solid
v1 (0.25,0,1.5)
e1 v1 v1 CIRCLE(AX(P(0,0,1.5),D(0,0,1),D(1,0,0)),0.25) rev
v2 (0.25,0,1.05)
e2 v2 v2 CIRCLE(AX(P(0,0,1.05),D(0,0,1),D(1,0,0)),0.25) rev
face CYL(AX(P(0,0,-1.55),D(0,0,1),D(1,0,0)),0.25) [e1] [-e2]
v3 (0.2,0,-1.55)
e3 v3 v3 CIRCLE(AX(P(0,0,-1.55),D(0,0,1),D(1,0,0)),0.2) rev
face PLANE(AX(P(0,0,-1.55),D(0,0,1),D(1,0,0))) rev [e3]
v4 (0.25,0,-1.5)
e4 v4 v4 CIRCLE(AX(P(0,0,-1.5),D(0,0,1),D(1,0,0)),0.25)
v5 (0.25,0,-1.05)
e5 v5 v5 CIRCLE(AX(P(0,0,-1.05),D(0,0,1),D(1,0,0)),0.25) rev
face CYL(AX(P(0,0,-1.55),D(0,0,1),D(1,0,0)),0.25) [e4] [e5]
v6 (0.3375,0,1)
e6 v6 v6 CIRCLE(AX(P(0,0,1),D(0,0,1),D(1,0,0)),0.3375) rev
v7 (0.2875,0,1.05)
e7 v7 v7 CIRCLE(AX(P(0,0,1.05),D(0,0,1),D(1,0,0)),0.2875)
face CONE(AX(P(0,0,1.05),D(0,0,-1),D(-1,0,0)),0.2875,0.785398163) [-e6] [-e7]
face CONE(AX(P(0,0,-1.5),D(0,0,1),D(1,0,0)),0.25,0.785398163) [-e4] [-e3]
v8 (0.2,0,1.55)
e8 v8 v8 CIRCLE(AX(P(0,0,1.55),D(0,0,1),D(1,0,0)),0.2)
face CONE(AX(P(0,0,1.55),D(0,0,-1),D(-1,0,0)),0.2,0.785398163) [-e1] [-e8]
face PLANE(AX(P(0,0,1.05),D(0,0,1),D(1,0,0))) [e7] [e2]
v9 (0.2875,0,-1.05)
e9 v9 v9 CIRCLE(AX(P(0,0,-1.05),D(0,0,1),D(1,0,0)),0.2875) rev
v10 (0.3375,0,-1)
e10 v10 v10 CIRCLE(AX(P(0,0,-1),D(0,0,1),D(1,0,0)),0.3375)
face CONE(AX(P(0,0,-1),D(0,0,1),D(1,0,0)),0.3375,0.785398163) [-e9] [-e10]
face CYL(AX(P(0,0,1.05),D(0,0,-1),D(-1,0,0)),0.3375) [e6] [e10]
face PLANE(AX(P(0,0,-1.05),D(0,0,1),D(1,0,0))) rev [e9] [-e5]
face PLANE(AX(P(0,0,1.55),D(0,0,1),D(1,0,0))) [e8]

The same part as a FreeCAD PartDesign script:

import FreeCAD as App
import Part
import Sketcher

V = App.Vector
Q = App.Units.Quantity


def edges_at(feature, points):
    """Names of the edges that pass closest to the given points."""
    edges = feature.Shape.Edges
    near = lambda p: min(range(len(edges)), key=lambda i: edges[i].distToShape(Part.Vertex(*p))[0])
    return sorted({f"Edge{near(p) + 1}" for p in points})

doc = App.newDocument("Part")
body = doc.addObject("PartDesign::Body", "Body")

# Sketch on XY plane
sketch1 = body.newObject("Sketcher::SketchObject", "Sketch")
sketch1.AttachmentSupport = (doc.getObject("XY_Plane"), [""])
sketch1.MapMode = "FlatFace"
sketch1.addGeometry(Part.Circle(V(0, 0, 0), V(0, 0, 1), 0.25), False)
sketch1.addConstraint(Sketcher.Constraint("Coincident", 0, 3, -1, 1))
sketch1.addConstraint(Sketcher.Constraint("Diameter", 0, Q("0.5 mm")))
pad1 = body.newObject("PartDesign::Pad", "Pad")
pad1.Profile = sketch1
pad1.Length = 3.1
pad1.Midplane = True

# Sketch on XY plane
sketch2 = body.newObject("Sketcher::SketchObject", "Sketch001")
sketch2.AttachmentSupport = (doc.getObject("XY_Plane"), [""])
sketch2.MapMode = "FlatFace"
sketch2.addGeometry(Part.Circle(V(0, 0, 0), V(0, 0, 1), 0.3375), False)
sketch2.addConstraint(Sketcher.Constraint("Coincident", 0, 3, -1, 1))
sketch2.addConstraint(Sketcher.Constraint("Diameter", 0, Q("0.675 mm")))
pad2 = body.newObject("PartDesign::Pad", "Pad001")
pad2.Profile = sketch2
pad2.Length = 2.1
pad2.Midplane = True
doc.recompute()

chamfer = body.newObject("PartDesign::Chamfer", "Chamfer")
chamfer.Base = (pad2, edges_at(pad2, [
    (-0.25, 0, 1.55),
    (-0.25, 0, -1.55),
    (-0.338, 0, -1.05),
    (-0.338, 0, 1.05),
]))
chamfer.Size = 0.05

doc.recompute()
